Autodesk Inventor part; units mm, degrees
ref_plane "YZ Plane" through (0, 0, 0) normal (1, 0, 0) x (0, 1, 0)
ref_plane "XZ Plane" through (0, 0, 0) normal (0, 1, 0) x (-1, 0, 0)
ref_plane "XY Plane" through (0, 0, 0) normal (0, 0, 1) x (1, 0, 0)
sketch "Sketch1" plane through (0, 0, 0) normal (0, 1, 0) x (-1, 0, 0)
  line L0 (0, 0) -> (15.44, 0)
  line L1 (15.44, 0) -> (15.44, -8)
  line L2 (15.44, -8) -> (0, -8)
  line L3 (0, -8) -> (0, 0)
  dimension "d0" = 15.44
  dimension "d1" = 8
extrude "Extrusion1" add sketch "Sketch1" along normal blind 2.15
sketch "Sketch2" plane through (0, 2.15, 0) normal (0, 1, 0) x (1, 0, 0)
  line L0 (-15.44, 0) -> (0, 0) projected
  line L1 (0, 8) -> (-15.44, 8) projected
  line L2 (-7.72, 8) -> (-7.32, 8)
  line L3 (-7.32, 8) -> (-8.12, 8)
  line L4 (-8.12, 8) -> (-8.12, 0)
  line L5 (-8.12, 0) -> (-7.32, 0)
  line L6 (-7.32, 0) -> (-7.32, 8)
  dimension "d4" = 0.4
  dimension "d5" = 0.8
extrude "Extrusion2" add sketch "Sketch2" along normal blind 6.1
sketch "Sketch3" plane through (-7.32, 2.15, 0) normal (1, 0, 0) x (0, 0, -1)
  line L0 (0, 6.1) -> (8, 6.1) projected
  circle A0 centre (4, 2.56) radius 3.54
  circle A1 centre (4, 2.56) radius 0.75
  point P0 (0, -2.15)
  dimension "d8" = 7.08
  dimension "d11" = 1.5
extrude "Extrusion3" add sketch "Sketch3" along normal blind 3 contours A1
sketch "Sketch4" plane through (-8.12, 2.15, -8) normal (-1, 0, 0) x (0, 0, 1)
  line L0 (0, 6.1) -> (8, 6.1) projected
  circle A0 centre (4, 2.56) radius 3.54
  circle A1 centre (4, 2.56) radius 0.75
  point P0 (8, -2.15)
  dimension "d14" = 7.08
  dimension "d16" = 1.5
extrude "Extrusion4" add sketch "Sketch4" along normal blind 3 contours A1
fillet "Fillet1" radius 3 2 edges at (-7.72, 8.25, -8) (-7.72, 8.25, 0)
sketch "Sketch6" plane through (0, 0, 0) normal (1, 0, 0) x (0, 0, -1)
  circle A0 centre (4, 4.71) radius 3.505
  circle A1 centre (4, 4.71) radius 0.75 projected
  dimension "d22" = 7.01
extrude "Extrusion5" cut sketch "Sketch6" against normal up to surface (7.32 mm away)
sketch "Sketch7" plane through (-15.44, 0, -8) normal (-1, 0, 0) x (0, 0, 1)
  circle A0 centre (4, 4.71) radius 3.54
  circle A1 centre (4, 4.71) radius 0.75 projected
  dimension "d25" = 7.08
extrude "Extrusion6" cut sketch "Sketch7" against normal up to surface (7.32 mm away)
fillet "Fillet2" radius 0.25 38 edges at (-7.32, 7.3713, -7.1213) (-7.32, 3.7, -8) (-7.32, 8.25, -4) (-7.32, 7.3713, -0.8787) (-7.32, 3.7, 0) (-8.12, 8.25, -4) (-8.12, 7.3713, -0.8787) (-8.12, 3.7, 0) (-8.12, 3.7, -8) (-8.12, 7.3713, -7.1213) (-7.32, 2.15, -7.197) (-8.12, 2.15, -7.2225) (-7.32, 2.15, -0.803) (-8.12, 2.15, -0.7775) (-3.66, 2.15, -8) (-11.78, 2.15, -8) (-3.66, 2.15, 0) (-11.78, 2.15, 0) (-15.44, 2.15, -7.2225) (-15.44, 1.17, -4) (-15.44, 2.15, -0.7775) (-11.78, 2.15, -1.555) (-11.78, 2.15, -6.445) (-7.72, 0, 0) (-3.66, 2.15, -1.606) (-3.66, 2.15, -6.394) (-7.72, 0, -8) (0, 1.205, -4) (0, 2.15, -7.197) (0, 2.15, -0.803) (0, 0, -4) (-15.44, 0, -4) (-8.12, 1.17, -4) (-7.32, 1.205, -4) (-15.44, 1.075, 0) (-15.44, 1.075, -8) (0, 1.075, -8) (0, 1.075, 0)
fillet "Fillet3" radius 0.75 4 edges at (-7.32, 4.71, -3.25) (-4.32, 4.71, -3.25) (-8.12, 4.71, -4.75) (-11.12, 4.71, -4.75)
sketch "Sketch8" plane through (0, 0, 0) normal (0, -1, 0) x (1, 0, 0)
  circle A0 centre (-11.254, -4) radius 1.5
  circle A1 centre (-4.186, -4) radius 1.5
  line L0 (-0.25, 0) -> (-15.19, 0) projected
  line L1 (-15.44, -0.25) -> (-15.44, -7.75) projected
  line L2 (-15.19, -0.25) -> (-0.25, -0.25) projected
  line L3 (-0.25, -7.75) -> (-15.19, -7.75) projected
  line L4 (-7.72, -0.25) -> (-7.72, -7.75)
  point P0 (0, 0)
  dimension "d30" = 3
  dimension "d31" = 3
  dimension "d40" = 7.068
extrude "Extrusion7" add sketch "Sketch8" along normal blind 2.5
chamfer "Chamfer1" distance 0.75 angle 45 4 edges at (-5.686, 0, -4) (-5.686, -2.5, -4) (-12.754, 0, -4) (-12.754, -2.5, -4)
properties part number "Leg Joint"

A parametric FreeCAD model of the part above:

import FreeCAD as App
import Part
import Sketcher

V = App.Vector
Q = App.Units.Quantity


def edges_at(feature, points):
    """Names of the edges that pass closest to the given points."""
    edges = feature.Shape.Edges
    near = lambda p: min(range(len(edges)), key=lambda i: edges[i].distToShape(Part.Vertex(*p))[0])
    return sorted({f"Edge{near(p) + 1}" for p in points})

doc = App.newDocument("Part")
params = doc.addObject("Spreadsheet::Sheet", "Params")
for row, (alias, value) in enumerate([
    ("sketch1_height", "8 mm"),
    ("sketch1_width", "15.44 mm"),
    ("pad1_length", "2.15 mm"),
    ("sketch2_width", "0.8 mm"),
    ("sketch2_height", "8 mm"),
    ("pad2_length", "6.1 mm"),
    ("sketch3_diameter", "1.5 mm"),
    ("pad3_length", "3 mm"),
    ("sketch4_diameter", "1.5 mm"),
    ("pad4_length", "3 mm"),
    ("fillet_radius", "3 mm"),
    ("sketch5_diameter", "7.01 mm"),
    ("sketch5_diameter2", "1.5 mm"),
    ("pocket1_length", "7.32 mm"),
    ("sketch6_diameter", "7.08 mm"),
    ("sketch6_diameter2", "1.5 mm"),
    ("pocket2_length", "7.32 mm"),
    ("fillet2_radius", "0.25 mm"),
    ("fillet3_radius", "0.75 mm"),
    ("sketch7_diameter", "3 mm"),
    ("pad5_length", "2.5 mm"),
    ("chamfer_size", "0.75 mm"),
], start=1):
    params.set(f"A{row}", alias)
    params.set(f"B{row}", "=" + value)
    params.setAlias(f"B{row}", alias)

body = doc.addObject("PartDesign::Body", "Body")

# Sketch on XZ plane
sketch1 = doc.addObject("Sketcher::SketchObject", "Sketch")
body.addObject(sketch1)
sketch1.AttachmentSupport = (doc.XZ_Plane, [""])
sketch1.MapMode = "FlatFace"
sketch1.addGeometry([
    Part.LineSegment(V(-15, 0, 0), V(0, 0, 0)),
    Part.LineSegment(V(0, 0, 0), V(0, -8, 0)),
    Part.LineSegment(V(0, -8, 0), V(-15, -8, 0)),
    Part.LineSegment(V(-15, -8, 0), V(-15, 0, 0)),
], False)
sketch1.addConstraint([
    Sketcher.Constraint("Coincident", 0, 2, 1, 1),
    Sketcher.Constraint("Coincident", 1, 2, 2, 1),
    Sketcher.Constraint("Coincident", 2, 2, 3, 1),
    Sketcher.Constraint("Coincident", 3, 2, 0, 1),
    Sketcher.Constraint("Horizontal", 0),
    Sketcher.Constraint("Vertical", 1),
    Sketcher.Constraint("Horizontal", 2),
    Sketcher.Constraint("Vertical", 3),
    Sketcher.Constraint("Coincident", 0, 2, -1, 1),
    Sketcher.Constraint("DistanceY", 1, 2, 1, 1, Q("8 mm")),
    Sketcher.Constraint("DistanceX", 0, 1, 0, 2, Q("15.44 mm")),
])
sketch1.setExpression("Constraints[9]", "Params.sketch1_height")
sketch1.setExpression("Constraints[10]", "Params.sketch1_width")
pad1 = doc.addObject("PartDesign::Pad", "Pad")
body.addObject(pad1)
pad1.Profile = sketch1
pad1.setExpression("Length", "Params.pad1_length")
pad1.Reversed = True

# Sketch on XZ plane
sketch2 = doc.addObject("Sketcher::SketchObject", "Sketch001")
body.addObject(sketch2)
sketch2.AttachmentSupport = (doc.XZ_Plane, [""])
sketch2.MapMode = "FlatFace"
sketch2.AttachmentOffset = App.Placement(V(0, 0, -2.15), App.Rotation())
sketch2.addGeometry([
    Part.LineSegment(V(-8.1, -8, 0), V(-8.1, 0, 0)),
    Part.LineSegment(V(-8.1, 0, 0), V(-7.3, 0, 0)),
    Part.LineSegment(V(-7.3, 0, 0), V(-7.3, -8, 0)),
    Part.LineSegment(V(-7.3, -8, 0), V(-8.1, -8, 0)),
], False)
sketch2.addConstraint([
    Sketcher.Constraint("Coincident", 0, 2, 1, 1),
    Sketcher.Constraint("Coincident", 1, 2, 2, 1),
    Sketcher.Constraint("Coincident", 2, 2, 3, 1),
    Sketcher.Constraint("Coincident", 3, 2, 0, 1),
    Sketcher.Constraint("Vertical", 0),
    Sketcher.Constraint("Horizontal", 1),
    Sketcher.Constraint("Vertical", 2),
    Sketcher.Constraint("Horizontal", 3),
    Sketcher.Constraint("PointOnObject", 0, 2, -1),
    Sketcher.Constraint("DistanceX", 1, 1, 1, 2, Q("0.8 mm")),
    Sketcher.Constraint("DistanceY", 0, 1, 0, 2, Q("8 mm")),
    Sketcher.Constraint("DistanceX", 0, 2, -1, 1, Q("8.12 mm")),
])
sketch2.setExpression("Constraints[9]", "Params.sketch2_width")
sketch2.setExpression("Constraints[10]", "Params.sketch2_height")
pad2 = doc.addObject("PartDesign::Pad", "Pad001")
body.addObject(pad2)
pad2.Profile = sketch2
pad2.setExpression("Length", "Params.pad2_length")
pad2.Reversed = True

# Sketch on YZ plane
sketch3 = doc.addObject("Sketcher::SketchObject", "Sketch002")
body.addObject(sketch3)
sketch3.AttachmentSupport = (doc.YZ_Plane, [""])
sketch3.MapMode = "FlatFace"
sketch3.AttachmentOffset = App.Placement(V(0, 0, -7.32), App.Rotation())
sketch3.addGeometry(Part.Circle(V(4.7, -4, 0), V(0, 0, 1), 0.8), False)
sketch3.addConstraint([
    Sketcher.Constraint("Diameter", 0, Q("1.5 mm")),
    Sketcher.Constraint("DistanceY", 0, 3, -1, 1, Q("4 mm")),
    Sketcher.Constraint("DistanceX", -1, 1, 0, 3, Q("4.71 mm")),
])
sketch3.setExpression("Constraints[0]", "Params.sketch3_diameter")
pad3 = doc.addObject("PartDesign::Pad", "Pad002")
body.addObject(pad3)
pad3.Profile = sketch3
pad3.setExpression("Length", "Params.pad3_length")

# Sketch on YZ plane
sketch4 = doc.addObject("Sketcher::SketchObject", "Sketch003")
body.addObject(sketch4)
sketch4.AttachmentSupport = (doc.YZ_Plane, [""])
sketch4.MapMode = "FlatFace"
sketch4.AttachmentOffset = App.Placement(V(0, 0, -8.12), App.Rotation())
sketch4.addGeometry(Part.Circle(V(4.7, -4, 0), V(0, 0, 1), 0.8), False)
sketch4.addConstraint([
    Sketcher.Constraint("Diameter", 0, Q("1.5 mm")),
    Sketcher.Constraint("DistanceY", 0, 3, -1, 1, Q("4 mm")),
    Sketcher.Constraint("DistanceX", -1, 1, 0, 3, Q("4.71 mm")),
])
sketch4.setExpression("Constraints[0]", "Params.sketch4_diameter")
pad4 = doc.addObject("PartDesign::Pad", "Pad003")
body.addObject(pad4)
pad4.Profile = sketch4
pad4.setExpression("Length", "Params.pad4_length")
pad4.Reversed = True
doc.recompute()

fillet = doc.addObject("PartDesign::Fillet", "Fillet")
body.addObject(fillet)
fillet.Base = (pad4, edges_at(pad4, [(-7.72, 8.25, -8), (-7.72, 8.25, 0)]))
fillet.setExpression("Radius", "Params.fillet_radius")

# Sketch on YZ plane
sketch5 = doc.addObject("Sketcher::SketchObject", "Sketch004")
body.addObject(sketch5)
sketch5.AttachmentSupport = (doc.YZ_Plane, [""])
sketch5.MapMode = "FlatFace"
sketch5.addGeometry([
    Part.Circle(V(4.7, -4, 0), V(0, 0, 1), 3.5),
    Part.Circle(V(4.7, -4, 0), V(0, 0, 1), 0.8),
], False)
sketch5.addConstraint([
    Sketcher.Constraint("Coincident", 1, 3, 0, 3),
    Sketcher.Constraint("Diameter", 0, Q("7.01 mm")),
    Sketcher.Constraint("Diameter", 1, Q("1.5 mm")),
    Sketcher.Constraint("DistanceY", 0, 3, -1, 1, Q("4 mm")),
    Sketcher.Constraint("DistanceX", -1, 1, 0, 3, Q("4.71 mm")),
])
sketch5.setExpression("Constraints[1]", "Params.sketch5_diameter")
sketch5.setExpression("Constraints[2]", "Params.sketch5_diameter2")
pocket1 = doc.addObject("PartDesign::Pocket", "Pocket")
body.addObject(pocket1)
pocket1.Profile = sketch5
pocket1.setExpression("Length", "Params.pocket1_length")

# Sketch on YZ plane
sketch6 = doc.addObject("Sketcher::SketchObject", "Sketch005")
body.addObject(sketch6)
sketch6.AttachmentSupport = (doc.YZ_Plane, [""])
sketch6.MapMode = "FlatFace"
sketch6.AttachmentOffset = App.Placement(V(0, 0, -15.44), App.Rotation())
sketch6.addGeometry([
    Part.Circle(V(4.7, -4, 0), V(0, 0, 1), 3.5),
    Part.Circle(V(4.7, -4, 0), V(0, 0, 1), 0.8),
], False)
sketch6.addConstraint([
    Sketcher.Constraint("Coincident", 1, 3, 0, 3),
    Sketcher.Constraint("Diameter", 0, Q("7.08 mm")),
    Sketcher.Constraint("Diameter", 1, Q("1.5 mm")),
    Sketcher.Constraint("DistanceY", 0, 3, -1, 1, Q("4 mm")),
    Sketcher.Constraint("DistanceX", -1, 1, 0, 3, Q("4.71 mm")),
])
sketch6.setExpression("Constraints[1]", "Params.sketch6_diameter")
sketch6.setExpression("Constraints[2]", "Params.sketch6_diameter2")
pocket2 = doc.addObject("PartDesign::Pocket", "Pocket001")
body.addObject(pocket2)
pocket2.Profile = sketch6
pocket2.setExpression("Length", "Params.pocket2_length")
pocket2.Reversed = True
doc.recompute()

fillet2 = doc.addObject("PartDesign::Fillet", "Fillet001")
body.addObject(fillet2)
fillet2.Base = (pocket2, edges_at(pocket2, [
    (-7.32, 7.371, -7.121),
    (-7.32, 3.7, -8),
    (-7.32, 8.25, -4),
    (-7.32, 7.371, -0.879),
    (-7.32, 3.7, 0),
    (-8.12, 8.25, -4),
    (-8.12, 7.371, -0.879),
    (-8.12, 3.7, 0),
    (-8.12, 3.7, -8),
    (-8.12, 7.371, -7.121),
    (-7.32, 2.15, -7.197),
    (-8.12, 2.15, -7.223),
    (-7.32, 2.15, -0.803),
    (-8.12, 2.15, -0.777),
    (-3.66, 2.15, -8),
    (-11.78, 2.15, -8),
    (-3.66, 2.15, 0),
    (-11.78, 2.15, 0),
    (-15.44, 2.15, -7.223),
    (-15.44, 1.17, -4),
    (-15.44, 2.15, -0.777),
    (-11.78, 2.15, -1.555),
    (-11.78, 2.15, -6.445),
    (-7.72, 0, 0),
    (-3.66, 2.15, -1.606),
    (-3.66, 2.15, -6.394),
    (-7.72, 0, -8),
    (0, 1.205, -4),
    (0, 2.15, -7.197),
    (0, 2.15, -0.803),
    (0, 0, -4),
    (-15.44, 0, -4),
    (-8.12, 1.17, -4),
    (-7.32, 1.205, -4),
    (-15.44, 1.075, 0),
    (-15.44, 1.075, -8),
    (0, 1.075, -8),
    (0, 1.075, 0),
]))
fillet2.setExpression("Radius", "Params.fillet2_radius")
doc.recompute()

fillet3 = doc.addObject("PartDesign::Fillet", "Fillet002")
body.addObject(fillet3)
fillet3.Base = (fillet2, edges_at(fillet2, [
    (-7.32, 4.71, -3.25),
    (-4.32, 4.71, -3.25),
    (-8.12, 4.71, -4.75),
    (-11.12, 4.71, -4.75),
]))
fillet3.setExpression("Radius", "Params.fillet3_radius")

# Sketch on XZ plane
sketch7 = doc.addObject("Sketcher::SketchObject", "Sketch006")
body.addObject(sketch7)
sketch7.AttachmentSupport = (doc.XZ_Plane, [""])
sketch7.MapMode = "FlatFace"
sketch7.addGeometry([
    Part.Circle(V(-11.3, -4, 0), V(0, 0, 1), 1.5),
    Part.Circle(V(-4.2, -4, 0), V(0, 0, 1), 1.5),
], False)
sketch7.addConstraint([
    Sketcher.Constraint("Equal", 0, 1),
    Sketcher.Constraint("Horizontal", 0, 3, 1, 3),
    Sketcher.Constraint("Diameter", 0, Q("3 mm")),
    Sketcher.Constraint("DistanceY", 0, 3, -1, 1, Q("4 mm")),
    Sketcher.Constraint("DistanceX", 0, 3, 1, 3, Q("7.068 mm")),
    Sketcher.Constraint("DistanceX", 0, 3, -1, 1, Q("11.254 mm")),
])
sketch7.setExpression("Constraints[2]", "Params.sketch7_diameter")
pad5 = doc.addObject("PartDesign::Pad", "Pad004")
body.addObject(pad5)
pad5.Profile = sketch7
pad5.setExpression("Length", "Params.pad5_length")
doc.recompute()

chamfer = doc.addObject("PartDesign::Chamfer", "Chamfer")
body.addObject(chamfer)
chamfer.Base = (pad5, edges_at(pad5, [
    (-5.686, 0, -4),
    (-5.686, -2.5, -4),
    (-12.754, 0, -4),
    (-12.754, -2.5, -4),
]))
chamfer.setExpression("Size", "Params.chamfer_size")

doc.recompute()
